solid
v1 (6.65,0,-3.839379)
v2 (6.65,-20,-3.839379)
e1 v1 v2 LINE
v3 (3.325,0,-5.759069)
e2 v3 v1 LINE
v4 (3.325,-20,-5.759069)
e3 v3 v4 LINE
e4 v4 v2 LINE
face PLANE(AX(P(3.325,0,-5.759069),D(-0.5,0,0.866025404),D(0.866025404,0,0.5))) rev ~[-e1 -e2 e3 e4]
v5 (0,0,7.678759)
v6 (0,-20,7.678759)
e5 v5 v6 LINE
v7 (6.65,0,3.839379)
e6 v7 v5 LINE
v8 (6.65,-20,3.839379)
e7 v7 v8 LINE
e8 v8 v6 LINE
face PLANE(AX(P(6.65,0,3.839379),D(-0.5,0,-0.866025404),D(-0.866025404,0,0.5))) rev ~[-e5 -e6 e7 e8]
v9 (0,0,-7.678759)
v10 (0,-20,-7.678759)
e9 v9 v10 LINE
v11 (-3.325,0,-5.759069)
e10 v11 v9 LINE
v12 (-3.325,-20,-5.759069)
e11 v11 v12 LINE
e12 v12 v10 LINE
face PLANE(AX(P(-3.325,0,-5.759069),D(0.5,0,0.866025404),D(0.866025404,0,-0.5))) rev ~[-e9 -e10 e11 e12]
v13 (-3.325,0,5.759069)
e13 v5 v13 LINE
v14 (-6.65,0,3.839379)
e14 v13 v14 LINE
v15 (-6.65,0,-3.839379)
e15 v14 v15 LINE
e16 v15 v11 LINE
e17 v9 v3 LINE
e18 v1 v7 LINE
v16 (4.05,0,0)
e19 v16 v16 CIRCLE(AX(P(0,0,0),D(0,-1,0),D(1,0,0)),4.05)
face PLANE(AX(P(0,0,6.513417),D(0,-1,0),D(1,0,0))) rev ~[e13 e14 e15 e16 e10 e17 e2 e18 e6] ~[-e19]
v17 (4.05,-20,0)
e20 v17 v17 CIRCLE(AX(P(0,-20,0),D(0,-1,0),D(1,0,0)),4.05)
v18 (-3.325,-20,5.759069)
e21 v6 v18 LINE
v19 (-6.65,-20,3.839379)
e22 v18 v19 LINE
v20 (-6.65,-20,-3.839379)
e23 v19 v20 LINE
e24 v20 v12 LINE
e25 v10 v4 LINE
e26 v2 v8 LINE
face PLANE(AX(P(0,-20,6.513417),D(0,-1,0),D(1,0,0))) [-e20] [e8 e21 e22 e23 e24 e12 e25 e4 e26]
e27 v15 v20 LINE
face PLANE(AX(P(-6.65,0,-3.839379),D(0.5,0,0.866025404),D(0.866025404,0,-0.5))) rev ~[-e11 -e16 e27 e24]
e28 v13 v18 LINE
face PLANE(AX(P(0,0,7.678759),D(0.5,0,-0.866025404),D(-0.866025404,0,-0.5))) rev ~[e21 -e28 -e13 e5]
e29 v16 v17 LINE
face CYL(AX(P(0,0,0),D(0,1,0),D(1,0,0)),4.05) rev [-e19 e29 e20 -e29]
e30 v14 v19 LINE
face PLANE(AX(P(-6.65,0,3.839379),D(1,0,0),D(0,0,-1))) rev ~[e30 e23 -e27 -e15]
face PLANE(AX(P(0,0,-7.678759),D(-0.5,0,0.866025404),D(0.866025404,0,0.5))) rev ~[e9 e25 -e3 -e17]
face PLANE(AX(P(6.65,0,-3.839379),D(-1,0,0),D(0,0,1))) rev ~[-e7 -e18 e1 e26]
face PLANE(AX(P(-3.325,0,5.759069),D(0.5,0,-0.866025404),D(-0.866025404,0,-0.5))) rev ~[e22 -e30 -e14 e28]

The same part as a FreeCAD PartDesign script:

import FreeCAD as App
import Part
import Sketcher
from FreeCAD import Vector
Q = App.Units.Quantity

doc = App.newDocument("Part")
body = doc.addObject("PartDesign::Body", "Body")

sketch1 = body.newObject("Sketcher::SketchObject", "Sketch")
sketch1.AttachmentSupport = (doc.getObject("XZ_Plane"), [""])
sketch1.MapMode = "FlatFace"
sketch1.addGeometry([
    Part.LineSegment(Vector(0, 7.7, 0), Vector(-3.3, 5.8, 0)),
    Part.LineSegment(Vector(-3.3, 5.8, 0), Vector(-6.7, 3.8, 0)),
    Part.LineSegment(Vector(-6.7, 3.8, 0), Vector(-6.7, -3.8, 0)),
    Part.LineSegment(Vector(-6.7, -3.8, 0), Vector(-3.3, -5.8, 0)),
    Part.LineSegment(Vector(-3.3, -5.8, 0), Vector(0, -7.7, 0)),
    Part.LineSegment(Vector(0, -7.7, 0), Vector(3.3, -5.8, 0)),
    Part.LineSegment(Vector(3.3, -5.8, 0), Vector(6.7, -3.8, 0)),
    Part.LineSegment(Vector(6.7, -3.8, 0), Vector(6.7, 3.8, 0)),
    Part.LineSegment(Vector(6.7, 3.8, 0), Vector(0, 7.7, 0)),
    Part.Circle(Vector(0, 0, 0), Vector(0, 0, 1), 4),
], False)
sketch1.addConstraint([
    Sketcher.Constraint("Coincident", 0, 2, 1, 1),
    Sketcher.Constraint("Coincident", 1, 2, 2, 1),
    Sketcher.Constraint("Coincident", 2, 2, 3, 1),
    Sketcher.Constraint("Coincident", 3, 2, 4, 1),
    Sketcher.Constraint("Coincident", 4, 2, 5, 1),
    Sketcher.Constraint("Coincident", 5, 2, 6, 1),
    Sketcher.Constraint("Coincident", 6, 2, 7, 1),
    Sketcher.Constraint("Coincident", 7, 2, 8, 1),
    Sketcher.Constraint("Coincident", 8, 2, 0, 1),
    Sketcher.Constraint("Vertical", 2),
    Sketcher.Constraint("Vertical", 7),
    Sketcher.Constraint("Coincident", 9, 3, -1, 1),
    Sketcher.Constraint("Symmetric", 0, 2, 5, 2, -1, 1),
    Sketcher.Constraint("Symmetric", 1, 2, 6, 2, -1, 1),
    Sketcher.Constraint("Symmetric", 4, 2, 8, 2, -1, 1),
    Sketcher.Constraint("Symmetric", 3, 2, 5, 2, -2),
    Sketcher.Constraint("PointOnObject", 4, 2, -2),
    Sketcher.Constraint("Parallel", 0, 1),
    Sketcher.Constraint("Parallel", 3, 4),
    Sketcher.Constraint("Parallel", 4, 8),
    Sketcher.Constraint("Equal", 0, 1),
    Sketcher.Constraint("Diameter", 9, Q("8.1 mm")),
    Sketcher.Constraint("Angle", 0, Q("-150 deg")),
    Sketcher.Constraint("DistanceX", 2, 2, 6, 2, Q("13.3 mm")),
    Sketcher.Constraint("DistanceY", 2, 2, 2, 1, Q("7.678759 mm")),
])
pad1 = body.newObject("PartDesign::Pad", "Pad")
pad1.Profile = sketch1
pad1.Length = 20

doc.recompute()
